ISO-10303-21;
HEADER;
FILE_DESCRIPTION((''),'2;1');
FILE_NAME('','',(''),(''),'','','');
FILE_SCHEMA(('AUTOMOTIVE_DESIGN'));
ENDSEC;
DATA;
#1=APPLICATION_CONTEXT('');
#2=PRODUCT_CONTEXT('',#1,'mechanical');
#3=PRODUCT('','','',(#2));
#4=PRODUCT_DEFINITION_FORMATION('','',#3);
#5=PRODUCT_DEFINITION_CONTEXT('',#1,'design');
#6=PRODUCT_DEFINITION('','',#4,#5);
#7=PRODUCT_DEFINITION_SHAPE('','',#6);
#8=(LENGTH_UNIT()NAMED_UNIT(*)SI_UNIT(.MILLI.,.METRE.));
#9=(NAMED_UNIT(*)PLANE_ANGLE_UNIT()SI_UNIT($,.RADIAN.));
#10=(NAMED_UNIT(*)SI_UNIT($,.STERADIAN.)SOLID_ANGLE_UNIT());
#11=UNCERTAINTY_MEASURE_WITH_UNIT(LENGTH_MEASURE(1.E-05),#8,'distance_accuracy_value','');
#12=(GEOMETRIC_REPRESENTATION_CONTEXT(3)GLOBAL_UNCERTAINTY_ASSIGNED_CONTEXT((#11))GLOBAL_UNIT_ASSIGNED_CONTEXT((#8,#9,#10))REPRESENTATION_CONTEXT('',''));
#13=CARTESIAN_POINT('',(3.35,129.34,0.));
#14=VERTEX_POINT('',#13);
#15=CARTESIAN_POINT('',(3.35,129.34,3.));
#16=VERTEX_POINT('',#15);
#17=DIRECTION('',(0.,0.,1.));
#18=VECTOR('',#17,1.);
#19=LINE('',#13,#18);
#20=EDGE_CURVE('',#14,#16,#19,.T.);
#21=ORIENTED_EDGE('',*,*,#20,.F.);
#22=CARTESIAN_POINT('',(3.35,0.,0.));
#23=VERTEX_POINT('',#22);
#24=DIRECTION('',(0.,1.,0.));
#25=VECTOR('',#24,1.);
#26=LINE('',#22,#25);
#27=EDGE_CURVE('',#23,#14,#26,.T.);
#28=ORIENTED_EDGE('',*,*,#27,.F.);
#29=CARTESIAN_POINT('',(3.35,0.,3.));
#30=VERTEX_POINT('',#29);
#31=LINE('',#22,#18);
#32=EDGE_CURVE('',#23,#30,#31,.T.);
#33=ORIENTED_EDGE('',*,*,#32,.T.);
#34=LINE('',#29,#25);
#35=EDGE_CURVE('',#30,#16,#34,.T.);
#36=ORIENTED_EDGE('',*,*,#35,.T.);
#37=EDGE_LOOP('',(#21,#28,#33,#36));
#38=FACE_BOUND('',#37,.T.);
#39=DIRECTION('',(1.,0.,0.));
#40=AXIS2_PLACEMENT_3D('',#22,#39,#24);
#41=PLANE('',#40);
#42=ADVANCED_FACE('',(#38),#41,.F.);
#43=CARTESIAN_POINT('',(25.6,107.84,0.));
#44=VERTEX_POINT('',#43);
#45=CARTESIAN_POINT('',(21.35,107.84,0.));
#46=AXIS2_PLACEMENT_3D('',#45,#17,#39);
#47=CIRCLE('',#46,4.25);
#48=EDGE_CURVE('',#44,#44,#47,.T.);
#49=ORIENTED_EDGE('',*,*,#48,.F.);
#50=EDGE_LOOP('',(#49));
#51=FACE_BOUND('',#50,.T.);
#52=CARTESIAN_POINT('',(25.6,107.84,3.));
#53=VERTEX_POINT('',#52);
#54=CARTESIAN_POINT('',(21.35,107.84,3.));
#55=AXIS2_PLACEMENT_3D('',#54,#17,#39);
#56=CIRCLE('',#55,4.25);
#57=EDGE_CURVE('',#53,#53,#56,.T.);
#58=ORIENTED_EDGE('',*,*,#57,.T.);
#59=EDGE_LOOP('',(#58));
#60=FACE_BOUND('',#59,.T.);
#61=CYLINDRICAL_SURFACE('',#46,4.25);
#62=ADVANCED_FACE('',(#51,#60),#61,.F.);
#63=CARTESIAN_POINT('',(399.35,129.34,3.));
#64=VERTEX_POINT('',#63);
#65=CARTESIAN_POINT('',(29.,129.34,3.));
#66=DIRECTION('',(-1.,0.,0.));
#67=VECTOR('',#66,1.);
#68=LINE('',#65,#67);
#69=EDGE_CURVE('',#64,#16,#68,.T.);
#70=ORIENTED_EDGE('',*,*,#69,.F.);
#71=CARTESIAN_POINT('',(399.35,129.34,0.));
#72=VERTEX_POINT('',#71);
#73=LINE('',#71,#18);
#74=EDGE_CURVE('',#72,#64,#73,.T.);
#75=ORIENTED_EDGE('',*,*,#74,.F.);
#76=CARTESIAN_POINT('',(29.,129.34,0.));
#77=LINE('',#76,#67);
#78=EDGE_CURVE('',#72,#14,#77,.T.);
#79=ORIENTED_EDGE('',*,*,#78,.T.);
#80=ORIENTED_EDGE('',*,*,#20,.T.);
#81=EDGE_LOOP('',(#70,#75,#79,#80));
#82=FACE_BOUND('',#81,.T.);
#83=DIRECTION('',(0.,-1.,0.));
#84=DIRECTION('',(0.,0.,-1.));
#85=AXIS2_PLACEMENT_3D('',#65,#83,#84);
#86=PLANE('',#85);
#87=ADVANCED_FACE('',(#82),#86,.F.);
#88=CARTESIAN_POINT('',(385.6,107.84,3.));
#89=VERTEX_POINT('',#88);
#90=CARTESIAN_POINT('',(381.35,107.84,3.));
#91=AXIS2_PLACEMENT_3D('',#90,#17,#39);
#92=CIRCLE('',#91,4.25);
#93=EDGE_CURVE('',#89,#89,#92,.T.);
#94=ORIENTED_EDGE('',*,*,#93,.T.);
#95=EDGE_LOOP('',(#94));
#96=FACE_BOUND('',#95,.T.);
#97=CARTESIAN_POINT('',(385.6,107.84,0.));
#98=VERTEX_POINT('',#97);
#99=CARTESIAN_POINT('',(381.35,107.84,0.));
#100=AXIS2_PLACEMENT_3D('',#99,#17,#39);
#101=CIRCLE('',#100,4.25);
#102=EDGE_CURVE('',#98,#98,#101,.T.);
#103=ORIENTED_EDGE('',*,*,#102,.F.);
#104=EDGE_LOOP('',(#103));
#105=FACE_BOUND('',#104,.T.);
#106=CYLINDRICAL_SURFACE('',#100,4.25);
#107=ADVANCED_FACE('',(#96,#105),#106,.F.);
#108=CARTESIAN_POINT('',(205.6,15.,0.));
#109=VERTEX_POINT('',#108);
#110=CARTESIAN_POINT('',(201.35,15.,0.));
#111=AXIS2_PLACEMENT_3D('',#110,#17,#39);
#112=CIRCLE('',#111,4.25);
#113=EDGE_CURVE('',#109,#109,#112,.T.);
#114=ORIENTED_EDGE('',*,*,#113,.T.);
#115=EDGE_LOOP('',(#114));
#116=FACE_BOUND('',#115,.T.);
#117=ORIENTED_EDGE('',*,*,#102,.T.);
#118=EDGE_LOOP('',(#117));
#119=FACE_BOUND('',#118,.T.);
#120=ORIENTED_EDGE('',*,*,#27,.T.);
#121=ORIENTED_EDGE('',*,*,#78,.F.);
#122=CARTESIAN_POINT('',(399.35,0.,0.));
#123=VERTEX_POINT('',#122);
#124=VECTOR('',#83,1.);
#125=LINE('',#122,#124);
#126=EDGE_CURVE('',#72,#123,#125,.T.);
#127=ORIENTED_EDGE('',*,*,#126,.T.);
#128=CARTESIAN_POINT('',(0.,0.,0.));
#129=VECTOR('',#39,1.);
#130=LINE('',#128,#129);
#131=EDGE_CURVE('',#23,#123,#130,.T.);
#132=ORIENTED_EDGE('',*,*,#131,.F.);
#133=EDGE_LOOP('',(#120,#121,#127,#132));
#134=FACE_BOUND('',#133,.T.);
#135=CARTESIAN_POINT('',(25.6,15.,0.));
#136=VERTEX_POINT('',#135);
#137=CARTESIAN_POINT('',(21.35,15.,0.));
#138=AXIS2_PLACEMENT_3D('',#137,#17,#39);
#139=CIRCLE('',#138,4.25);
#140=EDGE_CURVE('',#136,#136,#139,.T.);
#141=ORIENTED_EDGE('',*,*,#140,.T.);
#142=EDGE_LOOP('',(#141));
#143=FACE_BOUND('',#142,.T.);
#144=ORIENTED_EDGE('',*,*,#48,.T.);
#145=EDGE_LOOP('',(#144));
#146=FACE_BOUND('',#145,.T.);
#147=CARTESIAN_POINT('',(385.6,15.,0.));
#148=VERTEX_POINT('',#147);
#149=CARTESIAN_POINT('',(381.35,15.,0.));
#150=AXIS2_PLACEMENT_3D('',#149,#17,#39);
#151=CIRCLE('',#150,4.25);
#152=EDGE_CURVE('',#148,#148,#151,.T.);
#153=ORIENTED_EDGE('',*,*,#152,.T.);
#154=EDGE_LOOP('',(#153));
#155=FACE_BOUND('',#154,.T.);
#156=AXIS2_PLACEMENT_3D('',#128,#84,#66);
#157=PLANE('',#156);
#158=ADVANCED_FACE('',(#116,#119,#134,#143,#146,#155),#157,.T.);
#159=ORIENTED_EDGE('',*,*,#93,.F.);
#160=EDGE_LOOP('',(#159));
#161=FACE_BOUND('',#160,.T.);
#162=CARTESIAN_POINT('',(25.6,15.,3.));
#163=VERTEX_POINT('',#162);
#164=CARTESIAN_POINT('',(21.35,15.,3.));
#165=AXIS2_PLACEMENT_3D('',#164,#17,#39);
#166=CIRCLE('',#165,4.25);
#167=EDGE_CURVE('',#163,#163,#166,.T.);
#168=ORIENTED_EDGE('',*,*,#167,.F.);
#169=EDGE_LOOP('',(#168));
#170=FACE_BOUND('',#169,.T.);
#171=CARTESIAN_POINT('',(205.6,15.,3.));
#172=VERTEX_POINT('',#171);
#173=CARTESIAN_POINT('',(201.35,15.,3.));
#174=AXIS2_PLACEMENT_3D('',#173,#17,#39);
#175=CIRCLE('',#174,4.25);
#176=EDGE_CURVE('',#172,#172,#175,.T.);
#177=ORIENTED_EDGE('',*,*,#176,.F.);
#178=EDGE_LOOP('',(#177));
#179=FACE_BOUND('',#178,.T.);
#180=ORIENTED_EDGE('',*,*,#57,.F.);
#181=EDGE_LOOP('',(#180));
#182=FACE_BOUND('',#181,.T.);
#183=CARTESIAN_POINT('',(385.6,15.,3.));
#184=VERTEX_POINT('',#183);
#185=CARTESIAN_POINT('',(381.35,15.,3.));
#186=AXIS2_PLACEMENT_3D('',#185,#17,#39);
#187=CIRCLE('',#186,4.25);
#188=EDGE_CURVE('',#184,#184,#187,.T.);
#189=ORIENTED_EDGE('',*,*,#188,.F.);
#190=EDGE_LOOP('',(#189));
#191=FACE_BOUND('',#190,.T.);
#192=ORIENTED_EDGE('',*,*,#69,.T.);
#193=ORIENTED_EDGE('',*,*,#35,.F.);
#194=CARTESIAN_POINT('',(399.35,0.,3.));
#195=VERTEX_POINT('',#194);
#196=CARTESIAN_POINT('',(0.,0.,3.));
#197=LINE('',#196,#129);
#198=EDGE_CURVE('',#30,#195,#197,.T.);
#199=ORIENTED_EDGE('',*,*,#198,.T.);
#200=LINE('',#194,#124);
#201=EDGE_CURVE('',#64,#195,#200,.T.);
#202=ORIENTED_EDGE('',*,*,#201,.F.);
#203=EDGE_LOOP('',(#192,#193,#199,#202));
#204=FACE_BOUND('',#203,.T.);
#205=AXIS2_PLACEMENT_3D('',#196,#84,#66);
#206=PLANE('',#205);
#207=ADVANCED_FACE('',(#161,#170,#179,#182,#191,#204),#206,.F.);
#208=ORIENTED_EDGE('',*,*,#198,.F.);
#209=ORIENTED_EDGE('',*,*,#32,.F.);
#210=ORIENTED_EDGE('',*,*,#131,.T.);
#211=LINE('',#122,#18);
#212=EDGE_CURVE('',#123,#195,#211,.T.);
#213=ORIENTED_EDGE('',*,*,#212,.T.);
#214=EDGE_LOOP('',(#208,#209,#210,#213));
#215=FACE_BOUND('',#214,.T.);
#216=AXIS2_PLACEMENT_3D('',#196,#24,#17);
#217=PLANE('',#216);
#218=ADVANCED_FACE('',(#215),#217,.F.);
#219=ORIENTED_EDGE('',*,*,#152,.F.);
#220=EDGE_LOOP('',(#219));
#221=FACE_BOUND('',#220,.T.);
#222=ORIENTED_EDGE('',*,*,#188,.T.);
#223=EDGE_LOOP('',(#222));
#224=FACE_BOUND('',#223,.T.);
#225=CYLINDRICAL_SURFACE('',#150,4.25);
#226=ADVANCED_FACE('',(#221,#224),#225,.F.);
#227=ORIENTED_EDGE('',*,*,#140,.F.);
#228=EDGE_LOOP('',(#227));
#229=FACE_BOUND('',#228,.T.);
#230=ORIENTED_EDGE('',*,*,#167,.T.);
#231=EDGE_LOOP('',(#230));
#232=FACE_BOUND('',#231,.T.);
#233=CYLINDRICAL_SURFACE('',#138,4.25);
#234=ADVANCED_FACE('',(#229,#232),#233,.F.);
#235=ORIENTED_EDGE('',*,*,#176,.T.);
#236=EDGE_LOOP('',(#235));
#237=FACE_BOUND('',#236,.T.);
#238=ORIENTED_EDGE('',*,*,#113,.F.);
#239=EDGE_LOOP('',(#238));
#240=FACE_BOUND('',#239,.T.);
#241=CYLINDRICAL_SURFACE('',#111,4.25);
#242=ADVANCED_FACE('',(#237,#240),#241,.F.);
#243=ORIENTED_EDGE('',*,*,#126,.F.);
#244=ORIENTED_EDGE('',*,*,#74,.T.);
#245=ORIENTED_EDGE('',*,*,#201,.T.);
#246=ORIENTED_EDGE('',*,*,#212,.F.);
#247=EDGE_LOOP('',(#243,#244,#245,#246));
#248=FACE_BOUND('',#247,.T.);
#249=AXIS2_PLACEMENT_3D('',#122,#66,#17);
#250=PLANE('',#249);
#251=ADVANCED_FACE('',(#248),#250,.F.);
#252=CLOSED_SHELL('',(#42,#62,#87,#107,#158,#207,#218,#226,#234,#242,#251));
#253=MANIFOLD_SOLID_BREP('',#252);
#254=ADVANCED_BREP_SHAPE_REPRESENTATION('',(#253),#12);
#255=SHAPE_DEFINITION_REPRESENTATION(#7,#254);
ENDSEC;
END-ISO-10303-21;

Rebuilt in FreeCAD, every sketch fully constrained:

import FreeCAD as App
import Part
import Sketcher
Q = App.Units.Quantity


def add_polygon(sketch, points):
    """Adds a closed chain of lines whose ends are joined by coincident constraints."""
    first, n = sketch.GeometryCount, len(points)
    for a, b in zip(points, points[1:] + points[:1]):
        sketch.addGeometry(Part.LineSegment(App.Vector(*a, 0), App.Vector(*b, 0)), False)
    for i in range(n):
        sketch.addConstraint(Sketcher.Constraint("Coincident", first + i, 2, first + (i + 1) % n, 1))

doc = App.newDocument("Part")
body = doc.addObject("PartDesign::Body", "Body")

# Sketch on XY plane
sketch1 = doc.addObject("Sketcher::SketchObject", "Sketch")
body.addObject(sketch1)
sketch1.AttachmentSupport = (doc.XY_Plane, [""])
sketch1.MapMode = "FlatFace"
add_polygon(sketch1, [(0, 0), (402.7, 0), (402.7, 86.3), (373.7, 86.3), (373.7, 129.3), (29, 129.3), (29, 86.3), (0, 86.3)])  # lines 0-7
sketch1.addGeometry(Part.Circle(App.Vector(21.4, 15, 0), App.Vector(0, 0, 1), 4), False)  # 8
sketch1.addGeometry(Part.Circle(App.Vector(199, 15, 0), App.Vector(0, 0, 1), 4), False)  # 9
sketch1.addGeometry(Part.Circle(App.Vector(381.4, 15, 0), App.Vector(0, 0, 1), 4), False)  # 10
sketch1.addGeometry(Part.Circle(App.Vector(21.4, 71.3, 0), App.Vector(0, 0, 1), 4), False)  # 11
sketch1.addGeometry(Part.Circle(App.Vector(381.4, 71.3, 0), App.Vector(0, 0, 1), 4), False)  # 12
sketch1.addConstraint(Sketcher.Constraint("Horizontal", 0))
sketch1.addConstraint(Sketcher.Constraint("Vertical", 1))
sketch1.addConstraint(Sketcher.Constraint("Horizontal", 2))
sketch1.addConstraint(Sketcher.Constraint("Vertical", 3))
sketch1.addConstraint(Sketcher.Constraint("Horizontal", 4))
sketch1.addConstraint(Sketcher.Constraint("Vertical", 5))
sketch1.addConstraint(Sketcher.Constraint("Horizontal", 6))
sketch1.addConstraint(Sketcher.Constraint("Vertical", 7))
sketch1.addConstraint(Sketcher.Constraint("Coincident", 7, 2, -1, 1))
sketch1.addConstraint(Sketcher.Constraint("Equal", 8, 9))
sketch1.addConstraint(Sketcher.Constraint("Equal", 9, 10))
sketch1.addConstraint(Sketcher.Constraint("Equal", 10, 11))
sketch1.addConstraint(Sketcher.Constraint("Equal", 11, 12))
sketch1.addConstraint(Sketcher.Constraint("Horizontal", 8, 3, 9, 3))
sketch1.addConstraint(Sketcher.Constraint("Horizontal", 9, 3, 10, 3))
sketch1.addConstraint(Sketcher.Constraint("Horizontal", 11, 3, 12, 3))
sketch1.addConstraint(Sketcher.Constraint("Horizontal", 2, 2, 5, 2))
sketch1.addConstraint(Sketcher.Constraint("Vertical", 8, 3, 11, 3))
sketch1.addConstraint(Sketcher.Constraint("Vertical", 10, 3, 12, 3))
sketch1.addConstraint(Sketcher.Constraint("Equal", 2, 6))
sketch1.addConstraint(Sketcher.Constraint("Diameter", 8, Q("8 mm")))
sketch1.addConstraint(Sketcher.Constraint("DistanceX", 2, 2, 2, 1, Q("29 mm")))
sketch1.addConstraint(Sketcher.Constraint("DistanceY", 3, 1, 3, 2, Q("43 mm")))
sketch1.addConstraint(Sketcher.Constraint("DistanceX", 0, 1, 0, 2, Q("402.7 mm")))
sketch1.addConstraint(Sketcher.Constraint("DistanceY", -1, 1, 8, 3, Q("15 mm")))
sketch1.addConstraint(Sketcher.Constraint("DistanceX", -1, 1, 9, 3, Q("199 mm")))
sketch1.addConstraint(Sketcher.Constraint("DistanceX", 8, 3, 10, 3, Q("360 mm")))
sketch1.addConstraint(Sketcher.Constraint("DistanceY", 12, 3, 1, 2, Q("15 mm")))
sketch1.addConstraint(Sketcher.Constraint("DistanceY", 1, 1, 1, 2, Q("86.34 mm")))
sketch1.addConstraint(Sketcher.Constraint("DistanceX", -1, 1, 8, 3, Q("21.35 mm")))
pad1 = doc.addObject("PartDesign::Pad", "Pad")
body.addObject(pad1)
pad1.Profile = sketch1
pad1.Length = 3

# Sketch on XY plane
sketch2 = doc.addObject("Sketcher::SketchObject", "Sketch001")
body.addObject(sketch2)
sketch2.AttachmentSupport = (doc.XY_Plane, [""])
sketch2.MapMode = "FlatFace"
sketch2.AttachmentOffset = App.Placement(App.Vector(0, 0, 3), App.Rotation())
add_polygon(sketch2, [(0, 129), (0, 86), (29, 86), (29, 129)])  # lines 0-3
add_polygon(sketch2, [(374, 129), (374, 86), (403, 86), (403, 129)])  # lines 4-7
sketch2.addConstraint(Sketcher.Constraint("Vertical", 0))
sketch2.addConstraint(Sketcher.Constraint("Horizontal", 1))
sketch2.addConstraint(Sketcher.Constraint("Vertical", 2))
sketch2.addConstraint(Sketcher.Constraint("Horizontal", 3))
sketch2.addConstraint(Sketcher.Constraint("Vertical", 4))
sketch2.addConstraint(Sketcher.Constraint("Horizontal", 5))
sketch2.addConstraint(Sketcher.Constraint("Vertical", 6))
sketch2.addConstraint(Sketcher.Constraint("Horizontal", 7))
sketch2.addConstraint(Sketcher.Constraint("PointOnObject", 0, 2, -2))
sketch2.addConstraint(Sketcher.Constraint("Horizontal", 1, 2, 4, 2))
sketch2.addConstraint(Sketcher.Constraint("Horizontal", 3, 2, 6, 2))
sketch2.addConstraint(Sketcher.Constraint("Equal", 3, 5))
sketch2.addConstraint(Sketcher.Constraint("DistanceX", 1, 1, 1, 2, Q("29 mm")))
sketch2.addConstraint(Sketcher.Constraint("DistanceY", 0, 2, 0, 1, Q("43 mm")))
sketch2.addConstraint(Sketcher.Constraint("DistanceX", -1, 1, 4, 2, Q("373.7 mm")))
sketch2.addConstraint(Sketcher.Constraint("DistanceY", -1, 1, 0, 2, Q("86.34 mm")))
pad2 = doc.addObject("PartDesign::Pad", "Pad001")
body.addObject(pad2)
pad2.Profile = sketch2
pad2.Length = 3
pad2.Reversed = True

# Sketch on XY plane
sketch3 = doc.addObject("Sketcher::SketchObject", "Sketch002")
body.addObject(sketch3)
sketch3.AttachmentSupport = (doc.XY_Plane, [""])
sketch3.MapMode = "FlatFace"
sketch3.AttachmentOffset = App.Placement(App.Vector(0, 0, 3), App.Rotation())
sketch3.addGeometry(Part.Circle(App.Vector(15, 107.8, 0), App.Vector(0, 0, 1), 4.2), False)
sketch3.addGeometry(Part.Circle(App.Vector(387.7, 107.8, 0), App.Vector(0, 0, 1), 4.2), False)
sketch3.addConstraint(Sketcher.Constraint("Equal", 0, 1))
sketch3.addConstraint(Sketcher.Constraint("Horizontal", 0, 3, 1, 3))
sketch3.addConstraint(Sketcher.Constraint("Diameter", 0, Q("8.5 mm")))
sketch3.addConstraint(Sketcher.Constraint("DistanceX", -1, 1, 0, 3, Q("15 mm")))
sketch3.addConstraint(Sketcher.Constraint("DistanceX", -1, 1, 1, 3, Q("387.7 mm")))
sketch3.addConstraint(Sketcher.Constraint("DistanceY", -1, 1, 0, 3, Q("107.84 mm")))
pocket1 = doc.addObject("PartDesign::Pocket", "Pocket")
body.addObject(pocket1)
pocket1.Profile = sketch3
pocket1.Length = 3

# Sketch on XY plane
sketch4 = doc.addObject("Sketcher::SketchObject", "Sketch003")
body.addObject(sketch4)
sketch4.AttachmentSupport = (doc.XY_Plane, [""])
sketch4.MapMode = "FlatFace"
sketch4.AttachmentOffset = App.Placement(App.Vector(0, 0, 3), App.Rotation())
add_polygon(sketch4, [(0, 129.3), (0, 0), (3.4, 0), (3.4, 129.3)])  # lines 0-3
add_polygon(sketch4, [(399.4, 129.3), (399.4, 0), (402.7, 0), (402.7, 129.3)])  # lines 4-7
sketch4.addConstraint(Sketcher.Constraint("Vertical", 0))
sketch4.addConstraint(Sketcher.Constraint("Horizontal", 1))
sketch4.addConstraint(Sketcher.Constraint("Vertical", 2))
sketch4.addConstraint(Sketcher.Constraint("Horizontal", 3))
sketch4.addConstraint(Sketcher.Constraint("Vertical", 4))
sketch4.addConstraint(Sketcher.Constraint("Horizontal", 5))
sketch4.addConstraint(Sketcher.Constraint("Vertical", 6))
sketch4.addConstraint(Sketcher.Constraint("Horizontal", 7))
sketch4.addConstraint(Sketcher.Constraint("Coincident", 0, 2, -1, 1))
sketch4.addConstraint(Sketcher.Constraint("PointOnObject", 4, 2, -1))
sketch4.addConstraint(Sketcher.Constraint("Horizontal", 3, 2, 6, 2))
sketch4.addConstraint(Sketcher.Constraint("Equal", 3, 5))
sketch4.addConstraint(Sketcher.Constraint("DistanceX", 1, 2, 4, 2, Q("396 mm")))
sketch4.addConstraint(Sketcher.Constraint("DistanceX", 1, 1, 1, 2, Q("3.35 mm")))
sketch4.addConstraint(Sketcher.Constraint("DistanceY", 0, 2, 0, 1, Q("129.34 mm")))
pocket2 = doc.addObject("PartDesign::Pocket", "Pocket001")
body.addObject(pocket2)
pocket2.Profile = sketch4
pocket2.Length = 3

# Sketch on XY plane
sketch5 = doc.addObject("Sketcher::SketchObject", "Sketch004")
body.addObject(sketch5)
sketch5.AttachmentSupport = (doc.XY_Plane, [""])
sketch5.MapMode = "FlatFace"
sketch5.AttachmentOffset = App.Placement(App.Vector(0, 0, 3), App.Rotation())
sketch5.addGeometry(Part.Circle(App.Vector(199, 15, 0), App.Vector(0, 0, 1), 4.5), False)
sketch5.addGeometry(Part.Circle(App.Vector(21.4, 15, 0), App.Vector(0, 0, 1), 4.5), False)
sketch5.addGeometry(Part.Circle(App.Vector(21.4, 71.3, 0), App.Vector(0, 0, 1), 4.5), False)
sketch5.addGeometry(Part.Circle(App.Vector(15, 107.8, 0), App.Vector(0, 0, 1), 4.5), False)
sketch5.addGeometry(Part.Circle(App.Vector(387.7, 107.8, 0), App.Vector(0, 0, 1), 4.5), False)
sketch5.addGeometry(Part.Circle(App.Vector(381.4, 71.3, 0), App.Vector(0, 0, 1), 4.5), False)
sketch5.addGeometry(Part.Circle(App.Vector(381.4, 15, 0), App.Vector(0, 0, 1), 4.5), False)
sketch5.addConstraint(Sketcher.Constraint("Equal", 0, 1))
sketch5.addConstraint(Sketcher.Constraint("Equal", 1, 2))
sketch5.addConstraint(Sketcher.Constraint("Equal", 2, 3))
sketch5.addConstraint(Sketcher.Constraint("Equal", 3, 4))
sketch5.addConstraint(Sketcher.Constraint("Equal", 4, 5))
sketch5.addConstraint(Sketcher.Constraint("Equal", 5, 6))
sketch5.addConstraint(Sketcher.Constraint("Horizontal", 0, 3, 1, 3))
sketch5.addConstraint(Sketcher.Constraint("Horizontal", 3, 3, 4, 3))
sketch5.addConstraint(Sketcher.Constraint("Horizontal", 2, 3, 5, 3))
sketch5.addConstraint(Sketcher.Constraint("Horizontal", 1, 3, 6, 3))
sketch5.addConstraint(Sketcher.Constraint("Vertical", 1, 3, 2, 3))
sketch5.addConstraint(Sketcher.Constraint("Vertical", 5, 3, 6, 3))
sketch5.addConstraint(Sketcher.Constraint("Diameter", 0, Q("9 mm")))
sketch5.addConstraint(Sketcher.Constraint("DistanceX", -1, 1, 0, 3, Q("199 mm")))
sketch5.addConstraint(Sketcher.Constraint("DistanceY", -1, 1, 0, 3, Q("15 mm")))
sketch5.addConstraint(Sketcher.Constraint("DistanceX", -1, 1, 3, 3, Q("15 mm")))
sketch5.addConstraint(Sketcher.Constraint("DistanceX", 2, 3, 5, 3, Q("360 mm")))
sketch5.addConstraint(Sketcher.Constraint("DistanceX", -1, 1, 4, 3, Q("387.7 mm")))
sketch5.addConstraint(Sketcher.Constraint("DistanceY", 2, 3, 3, 3, Q("36.5 mm")))
sketch5.addConstraint(Sketcher.Constraint("DistanceX", -1, 1, 1, 3, Q("21.35 mm")))
sketch5.addConstraint(Sketcher.Constraint("DistanceY", -1, 1, 2, 3, Q("71.34 mm")))
pad3 = doc.addObject("PartDesign::Pad", "Pad002")
body.addObject(pad3)
pad3.Profile = sketch5
pad3.Length = 3
pad3.Reversed = True

# Sketch on XY plane
sketch6 = doc.addObject("Sketcher::SketchObject", "Sketch005")
body.addObject(sketch6)
sketch6.AttachmentSupport = (doc.XY_Plane, [""])
sketch6.MapMode = "FlatFace"
sketch6.AttachmentOffset = App.Placement(App.Vector(0, 0, 3), App.Rotation())
sketch6.addGeometry(Part.Circle(App.Vector(21.4, 107.8, 0), App.Vector(0, 0, 1), 4.2), False)
sketch6.addGeometry(Part.Circle(App.Vector(21.4, 15, 0), App.Vector(0, 0, 1), 4.2), False)
sketch6.addGeometry(Part.Circle(App.Vector(201.3, 15, 0), App.Vector(0, 0, 1), 4.2), False)
sketch6.addGeometry(Part.Circle(App.Vector(381.4, 15, 0), App.Vector(0, 0, 1), 4.2), False)
sketch6.addGeometry(Part.Circle(App.Vector(381.4, 107.8, 0), App.Vector(0, 0, 1), 4.2), False)
sketch6.addConstraint(Sketcher.Constraint("Equal", 0, 1))
sketch6.addConstraint(Sketcher.Constraint("Equal", 1, 2))
sketch6.addConstraint(Sketcher.Constraint("Equal", 2, 3))
sketch6.addConstraint(Sketcher.Constraint("Equal", 3, 4))
sketch6.addConstraint(Sketcher.Constraint("Horizontal", 1, 3, 2, 3))
sketch6.addConstraint(Sketcher.Constraint("Horizontal", 2, 3, 3, 3))
sketch6.addConstraint(Sketcher.Constraint("Horizontal", 0, 3, 4, 3))
sketch6.addConstraint(Sketcher.Constraint("Vertical", 0, 3, 1, 3))
sketch6.addConstraint(Sketcher.Constraint("Vertical", 3, 3, 4, 3))
sketch6.addConstraint(Sketcher.Constraint("Diameter", 0, Q("8.5 mm")))
sketch6.addConstraint(Sketcher.Constraint("DistanceY", -1, 1, 1, 3, Q("15 mm")))
sketch6.addConstraint(Sketcher.Constraint("DistanceX", 1, 3, 2, 3, Q("180 mm")))
sketch6.addConstraint(Sketcher.Constraint("DistanceX", 2, 3, 3, 3, Q("180 mm")))
sketch6.addConstraint(Sketcher.Constraint("DistanceX", -1, 1, 0, 3, Q("21.35 mm")))
sketch6.addConstraint(Sketcher.Constraint("DistanceY", -1, 1, 0, 3, Q("107.84 mm")))
pocket3 = doc.addObject("PartDesign::Pocket", "Pocket002")
body.addObject(pocket3)
pocket3.Profile = sketch6
pocket3.Length = 3

doc.recompute()
